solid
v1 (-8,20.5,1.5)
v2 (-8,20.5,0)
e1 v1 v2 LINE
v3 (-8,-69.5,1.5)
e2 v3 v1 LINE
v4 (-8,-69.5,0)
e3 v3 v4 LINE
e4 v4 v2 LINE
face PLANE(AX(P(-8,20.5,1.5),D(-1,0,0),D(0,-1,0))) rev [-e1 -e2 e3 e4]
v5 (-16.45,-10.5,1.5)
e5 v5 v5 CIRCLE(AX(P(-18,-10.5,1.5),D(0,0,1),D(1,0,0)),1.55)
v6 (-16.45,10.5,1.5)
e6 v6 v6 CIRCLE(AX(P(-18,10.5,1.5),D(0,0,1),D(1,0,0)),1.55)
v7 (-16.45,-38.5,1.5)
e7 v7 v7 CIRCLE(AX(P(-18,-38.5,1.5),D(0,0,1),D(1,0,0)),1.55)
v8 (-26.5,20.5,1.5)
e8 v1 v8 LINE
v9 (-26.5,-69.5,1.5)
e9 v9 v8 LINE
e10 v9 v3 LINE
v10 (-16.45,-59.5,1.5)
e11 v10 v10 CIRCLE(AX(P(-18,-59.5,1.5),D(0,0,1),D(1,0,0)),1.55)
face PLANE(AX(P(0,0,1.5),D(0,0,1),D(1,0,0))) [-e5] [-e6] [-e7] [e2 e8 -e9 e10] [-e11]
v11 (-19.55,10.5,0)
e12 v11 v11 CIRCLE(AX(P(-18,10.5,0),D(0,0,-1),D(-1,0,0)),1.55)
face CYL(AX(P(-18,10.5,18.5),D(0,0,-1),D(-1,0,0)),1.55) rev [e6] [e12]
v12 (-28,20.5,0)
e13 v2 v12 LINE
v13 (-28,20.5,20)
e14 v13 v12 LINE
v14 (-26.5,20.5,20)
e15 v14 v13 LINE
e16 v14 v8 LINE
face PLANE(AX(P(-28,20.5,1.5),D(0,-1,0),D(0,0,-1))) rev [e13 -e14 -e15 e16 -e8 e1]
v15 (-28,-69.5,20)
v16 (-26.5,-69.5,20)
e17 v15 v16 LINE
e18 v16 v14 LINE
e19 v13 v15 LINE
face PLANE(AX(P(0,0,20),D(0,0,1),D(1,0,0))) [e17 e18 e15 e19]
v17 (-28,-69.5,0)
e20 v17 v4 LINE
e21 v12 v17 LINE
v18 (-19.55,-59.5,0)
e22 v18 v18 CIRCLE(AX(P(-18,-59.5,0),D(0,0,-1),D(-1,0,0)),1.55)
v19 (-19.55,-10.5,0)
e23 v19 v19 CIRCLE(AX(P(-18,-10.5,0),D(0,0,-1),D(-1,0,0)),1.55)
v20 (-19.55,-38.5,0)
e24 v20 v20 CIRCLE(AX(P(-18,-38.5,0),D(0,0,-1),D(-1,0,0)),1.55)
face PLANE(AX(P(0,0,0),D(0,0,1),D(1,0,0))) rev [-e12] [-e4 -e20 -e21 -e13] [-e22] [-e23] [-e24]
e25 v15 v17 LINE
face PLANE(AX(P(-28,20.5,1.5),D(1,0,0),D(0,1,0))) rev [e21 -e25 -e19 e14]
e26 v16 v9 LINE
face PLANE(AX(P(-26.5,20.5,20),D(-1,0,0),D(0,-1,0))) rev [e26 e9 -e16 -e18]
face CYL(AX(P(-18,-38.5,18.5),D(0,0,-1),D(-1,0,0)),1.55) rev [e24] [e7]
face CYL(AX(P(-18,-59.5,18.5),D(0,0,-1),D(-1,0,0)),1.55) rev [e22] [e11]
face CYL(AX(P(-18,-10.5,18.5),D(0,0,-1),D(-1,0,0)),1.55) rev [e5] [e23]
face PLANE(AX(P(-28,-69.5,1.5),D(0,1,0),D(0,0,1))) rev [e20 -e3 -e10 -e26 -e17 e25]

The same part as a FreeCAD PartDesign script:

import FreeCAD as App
import Part
import Sketcher

V = App.Vector
Q = App.Units.Quantity

doc = App.newDocument("Part")
body = doc.addObject("PartDesign::Body", "Body")

sketch1 = body.newObject("Sketcher::SketchObject", "Sketch")
sketch1.AttachmentSupport = (doc.getObject("XY_Plane"), [""])
sketch1.MapMode = "FlatFace"
sketch1.addGeometry([
    Part.LineSegment(V(-28, 20, 0), V(-28, -70, 0)),
    Part.LineSegment(V(-28, -70, 0), V(-8, -70, 0)),
    Part.LineSegment(V(-8, -70, 0), V(-8, 20, 0)),
    Part.LineSegment(V(-8, 20, 0), V(-28, 20, 0)),
], False)
sketch1.addConstraint([
    Sketcher.Constraint("Coincident", 0, 2, 1, 1),
    Sketcher.Constraint("Coincident", 1, 2, 2, 1),
    Sketcher.Constraint("Coincident", 2, 2, 3, 1),
    Sketcher.Constraint("Coincident", 3, 2, 0, 1),
    Sketcher.Constraint("Vertical", 0),
    Sketcher.Constraint("Horizontal", 1),
    Sketcher.Constraint("Vertical", 2),
    Sketcher.Constraint("Horizontal", 3),
    Sketcher.Constraint("DistanceX", 1, 1, 1, 2, Q("20 mm")),
    Sketcher.Constraint("DistanceY", 0, 2, 0, 1, Q("90 mm")),
    Sketcher.Constraint("DistanceX", 0, 2, -1, 1, Q("28 mm")),
    Sketcher.Constraint("DistanceY", 0, 2, -1, 1, Q("69.5 mm")),
])
pad1 = body.newObject("PartDesign::Pad", "Pad")
pad1.Profile = sketch1
pad1.Length = 1.5

sketch2 = body.newObject("Sketcher::SketchObject", "Sketch001")
sketch2.AttachmentSupport = (doc.getObject("XY_Plane"), [""])
sketch2.MapMode = "FlatFace"
sketch2.AttachmentOffset = App.Placement(V(0, 0, 1.5), App.Rotation())
sketch2.addGeometry([
    Part.LineSegment(V(-28, 20.5, 0), V(-28, -69.5, 0)),
    Part.LineSegment(V(-28, -69.5, 0), V(-26.5, -69.5, 0)),
    Part.LineSegment(V(-26.5, -69.5, 0), V(-26.5, 20.5, 0)),
    Part.LineSegment(V(-26.5, 20.5, 0), V(-28, 20.5, 0)),
], False)
sketch2.addConstraint([
    Sketcher.Constraint("Coincident", 0, 2, 1, 1),
    Sketcher.Constraint("Coincident", 1, 2, 2, 1),
    Sketcher.Constraint("Coincident", 2, 2, 3, 1),
    Sketcher.Constraint("Coincident", 3, 2, 0, 1),
    Sketcher.Constraint("Vertical", 0),
    Sketcher.Constraint("Horizontal", 1),
    Sketcher.Constraint("Vertical", 2),
    Sketcher.Constraint("Horizontal", 3),
    Sketcher.Constraint("DistanceY", 0, 2, 0, 1, Q("90 mm")),
    Sketcher.Constraint("DistanceX", 1, 1, 1, 2, Q("1.5 mm")),
    Sketcher.Constraint("DistanceX", 0, 2, -1, 1, Q("28 mm")),
    Sketcher.Constraint("DistanceY", 0, 2, -1, 1, Q("69.5 mm")),
])
pad2 = body.newObject("PartDesign::Pad", "Pad001")
pad2.Profile = sketch2
pad2.Length = 18.5

sketch3 = body.newObject("Sketcher::SketchObject", "Sketch002")
sketch3.AttachmentSupport = (doc.getObject("XY_Plane"), [""])
sketch3.MapMode = "FlatFace"
sketch3.addGeometry([
    Part.Circle(V(-18, 10.5, 0), V(0, 0, 1), 1.6),
    Part.Circle(V(-18, -10.5, 0), V(0, 0, 1), 1.6),
    Part.Circle(V(-18, -59.5, 0), V(0, 0, 1), 1.6),
    Part.Circle(V(-18, -38.5, 0), V(0, 0, 1), 1.6),
], False)
sketch3.addConstraint([
    Sketcher.Constraint("Equal", 0, 1),
    Sketcher.Constraint("Equal", 1, 2),
    Sketcher.Constraint("Equal", 2, 3),
    Sketcher.Constraint("Symmetric", 0, 3, 1, 3, -1),
    Sketcher.Constraint("Vertical", 1, 3, 2, 3),
    Sketcher.Constraint("Vertical", 2, 3, 3, 3),
    Sketcher.Constraint("Diameter", 0, Q("3.1 mm")),
    Sketcher.Constraint("DistanceX", 0, 3, -1, 1, Q("18 mm")),
    Sketcher.Constraint("DistanceY", 1, 3, 0, 3, Q("21 mm")),
    Sketcher.Constraint("DistanceY", 2, 3, 1, 3, Q("49 mm")),
    Sketcher.Constraint("DistanceY", 2, 3, 3, 3, Q("21 mm")),
])
pocket1 = body.newObject("PartDesign::Pocket", "Pocket")
pocket1.Profile = sketch3
pocket1.Length = 18.5
pocket1.Reversed = True

doc.recompute()
